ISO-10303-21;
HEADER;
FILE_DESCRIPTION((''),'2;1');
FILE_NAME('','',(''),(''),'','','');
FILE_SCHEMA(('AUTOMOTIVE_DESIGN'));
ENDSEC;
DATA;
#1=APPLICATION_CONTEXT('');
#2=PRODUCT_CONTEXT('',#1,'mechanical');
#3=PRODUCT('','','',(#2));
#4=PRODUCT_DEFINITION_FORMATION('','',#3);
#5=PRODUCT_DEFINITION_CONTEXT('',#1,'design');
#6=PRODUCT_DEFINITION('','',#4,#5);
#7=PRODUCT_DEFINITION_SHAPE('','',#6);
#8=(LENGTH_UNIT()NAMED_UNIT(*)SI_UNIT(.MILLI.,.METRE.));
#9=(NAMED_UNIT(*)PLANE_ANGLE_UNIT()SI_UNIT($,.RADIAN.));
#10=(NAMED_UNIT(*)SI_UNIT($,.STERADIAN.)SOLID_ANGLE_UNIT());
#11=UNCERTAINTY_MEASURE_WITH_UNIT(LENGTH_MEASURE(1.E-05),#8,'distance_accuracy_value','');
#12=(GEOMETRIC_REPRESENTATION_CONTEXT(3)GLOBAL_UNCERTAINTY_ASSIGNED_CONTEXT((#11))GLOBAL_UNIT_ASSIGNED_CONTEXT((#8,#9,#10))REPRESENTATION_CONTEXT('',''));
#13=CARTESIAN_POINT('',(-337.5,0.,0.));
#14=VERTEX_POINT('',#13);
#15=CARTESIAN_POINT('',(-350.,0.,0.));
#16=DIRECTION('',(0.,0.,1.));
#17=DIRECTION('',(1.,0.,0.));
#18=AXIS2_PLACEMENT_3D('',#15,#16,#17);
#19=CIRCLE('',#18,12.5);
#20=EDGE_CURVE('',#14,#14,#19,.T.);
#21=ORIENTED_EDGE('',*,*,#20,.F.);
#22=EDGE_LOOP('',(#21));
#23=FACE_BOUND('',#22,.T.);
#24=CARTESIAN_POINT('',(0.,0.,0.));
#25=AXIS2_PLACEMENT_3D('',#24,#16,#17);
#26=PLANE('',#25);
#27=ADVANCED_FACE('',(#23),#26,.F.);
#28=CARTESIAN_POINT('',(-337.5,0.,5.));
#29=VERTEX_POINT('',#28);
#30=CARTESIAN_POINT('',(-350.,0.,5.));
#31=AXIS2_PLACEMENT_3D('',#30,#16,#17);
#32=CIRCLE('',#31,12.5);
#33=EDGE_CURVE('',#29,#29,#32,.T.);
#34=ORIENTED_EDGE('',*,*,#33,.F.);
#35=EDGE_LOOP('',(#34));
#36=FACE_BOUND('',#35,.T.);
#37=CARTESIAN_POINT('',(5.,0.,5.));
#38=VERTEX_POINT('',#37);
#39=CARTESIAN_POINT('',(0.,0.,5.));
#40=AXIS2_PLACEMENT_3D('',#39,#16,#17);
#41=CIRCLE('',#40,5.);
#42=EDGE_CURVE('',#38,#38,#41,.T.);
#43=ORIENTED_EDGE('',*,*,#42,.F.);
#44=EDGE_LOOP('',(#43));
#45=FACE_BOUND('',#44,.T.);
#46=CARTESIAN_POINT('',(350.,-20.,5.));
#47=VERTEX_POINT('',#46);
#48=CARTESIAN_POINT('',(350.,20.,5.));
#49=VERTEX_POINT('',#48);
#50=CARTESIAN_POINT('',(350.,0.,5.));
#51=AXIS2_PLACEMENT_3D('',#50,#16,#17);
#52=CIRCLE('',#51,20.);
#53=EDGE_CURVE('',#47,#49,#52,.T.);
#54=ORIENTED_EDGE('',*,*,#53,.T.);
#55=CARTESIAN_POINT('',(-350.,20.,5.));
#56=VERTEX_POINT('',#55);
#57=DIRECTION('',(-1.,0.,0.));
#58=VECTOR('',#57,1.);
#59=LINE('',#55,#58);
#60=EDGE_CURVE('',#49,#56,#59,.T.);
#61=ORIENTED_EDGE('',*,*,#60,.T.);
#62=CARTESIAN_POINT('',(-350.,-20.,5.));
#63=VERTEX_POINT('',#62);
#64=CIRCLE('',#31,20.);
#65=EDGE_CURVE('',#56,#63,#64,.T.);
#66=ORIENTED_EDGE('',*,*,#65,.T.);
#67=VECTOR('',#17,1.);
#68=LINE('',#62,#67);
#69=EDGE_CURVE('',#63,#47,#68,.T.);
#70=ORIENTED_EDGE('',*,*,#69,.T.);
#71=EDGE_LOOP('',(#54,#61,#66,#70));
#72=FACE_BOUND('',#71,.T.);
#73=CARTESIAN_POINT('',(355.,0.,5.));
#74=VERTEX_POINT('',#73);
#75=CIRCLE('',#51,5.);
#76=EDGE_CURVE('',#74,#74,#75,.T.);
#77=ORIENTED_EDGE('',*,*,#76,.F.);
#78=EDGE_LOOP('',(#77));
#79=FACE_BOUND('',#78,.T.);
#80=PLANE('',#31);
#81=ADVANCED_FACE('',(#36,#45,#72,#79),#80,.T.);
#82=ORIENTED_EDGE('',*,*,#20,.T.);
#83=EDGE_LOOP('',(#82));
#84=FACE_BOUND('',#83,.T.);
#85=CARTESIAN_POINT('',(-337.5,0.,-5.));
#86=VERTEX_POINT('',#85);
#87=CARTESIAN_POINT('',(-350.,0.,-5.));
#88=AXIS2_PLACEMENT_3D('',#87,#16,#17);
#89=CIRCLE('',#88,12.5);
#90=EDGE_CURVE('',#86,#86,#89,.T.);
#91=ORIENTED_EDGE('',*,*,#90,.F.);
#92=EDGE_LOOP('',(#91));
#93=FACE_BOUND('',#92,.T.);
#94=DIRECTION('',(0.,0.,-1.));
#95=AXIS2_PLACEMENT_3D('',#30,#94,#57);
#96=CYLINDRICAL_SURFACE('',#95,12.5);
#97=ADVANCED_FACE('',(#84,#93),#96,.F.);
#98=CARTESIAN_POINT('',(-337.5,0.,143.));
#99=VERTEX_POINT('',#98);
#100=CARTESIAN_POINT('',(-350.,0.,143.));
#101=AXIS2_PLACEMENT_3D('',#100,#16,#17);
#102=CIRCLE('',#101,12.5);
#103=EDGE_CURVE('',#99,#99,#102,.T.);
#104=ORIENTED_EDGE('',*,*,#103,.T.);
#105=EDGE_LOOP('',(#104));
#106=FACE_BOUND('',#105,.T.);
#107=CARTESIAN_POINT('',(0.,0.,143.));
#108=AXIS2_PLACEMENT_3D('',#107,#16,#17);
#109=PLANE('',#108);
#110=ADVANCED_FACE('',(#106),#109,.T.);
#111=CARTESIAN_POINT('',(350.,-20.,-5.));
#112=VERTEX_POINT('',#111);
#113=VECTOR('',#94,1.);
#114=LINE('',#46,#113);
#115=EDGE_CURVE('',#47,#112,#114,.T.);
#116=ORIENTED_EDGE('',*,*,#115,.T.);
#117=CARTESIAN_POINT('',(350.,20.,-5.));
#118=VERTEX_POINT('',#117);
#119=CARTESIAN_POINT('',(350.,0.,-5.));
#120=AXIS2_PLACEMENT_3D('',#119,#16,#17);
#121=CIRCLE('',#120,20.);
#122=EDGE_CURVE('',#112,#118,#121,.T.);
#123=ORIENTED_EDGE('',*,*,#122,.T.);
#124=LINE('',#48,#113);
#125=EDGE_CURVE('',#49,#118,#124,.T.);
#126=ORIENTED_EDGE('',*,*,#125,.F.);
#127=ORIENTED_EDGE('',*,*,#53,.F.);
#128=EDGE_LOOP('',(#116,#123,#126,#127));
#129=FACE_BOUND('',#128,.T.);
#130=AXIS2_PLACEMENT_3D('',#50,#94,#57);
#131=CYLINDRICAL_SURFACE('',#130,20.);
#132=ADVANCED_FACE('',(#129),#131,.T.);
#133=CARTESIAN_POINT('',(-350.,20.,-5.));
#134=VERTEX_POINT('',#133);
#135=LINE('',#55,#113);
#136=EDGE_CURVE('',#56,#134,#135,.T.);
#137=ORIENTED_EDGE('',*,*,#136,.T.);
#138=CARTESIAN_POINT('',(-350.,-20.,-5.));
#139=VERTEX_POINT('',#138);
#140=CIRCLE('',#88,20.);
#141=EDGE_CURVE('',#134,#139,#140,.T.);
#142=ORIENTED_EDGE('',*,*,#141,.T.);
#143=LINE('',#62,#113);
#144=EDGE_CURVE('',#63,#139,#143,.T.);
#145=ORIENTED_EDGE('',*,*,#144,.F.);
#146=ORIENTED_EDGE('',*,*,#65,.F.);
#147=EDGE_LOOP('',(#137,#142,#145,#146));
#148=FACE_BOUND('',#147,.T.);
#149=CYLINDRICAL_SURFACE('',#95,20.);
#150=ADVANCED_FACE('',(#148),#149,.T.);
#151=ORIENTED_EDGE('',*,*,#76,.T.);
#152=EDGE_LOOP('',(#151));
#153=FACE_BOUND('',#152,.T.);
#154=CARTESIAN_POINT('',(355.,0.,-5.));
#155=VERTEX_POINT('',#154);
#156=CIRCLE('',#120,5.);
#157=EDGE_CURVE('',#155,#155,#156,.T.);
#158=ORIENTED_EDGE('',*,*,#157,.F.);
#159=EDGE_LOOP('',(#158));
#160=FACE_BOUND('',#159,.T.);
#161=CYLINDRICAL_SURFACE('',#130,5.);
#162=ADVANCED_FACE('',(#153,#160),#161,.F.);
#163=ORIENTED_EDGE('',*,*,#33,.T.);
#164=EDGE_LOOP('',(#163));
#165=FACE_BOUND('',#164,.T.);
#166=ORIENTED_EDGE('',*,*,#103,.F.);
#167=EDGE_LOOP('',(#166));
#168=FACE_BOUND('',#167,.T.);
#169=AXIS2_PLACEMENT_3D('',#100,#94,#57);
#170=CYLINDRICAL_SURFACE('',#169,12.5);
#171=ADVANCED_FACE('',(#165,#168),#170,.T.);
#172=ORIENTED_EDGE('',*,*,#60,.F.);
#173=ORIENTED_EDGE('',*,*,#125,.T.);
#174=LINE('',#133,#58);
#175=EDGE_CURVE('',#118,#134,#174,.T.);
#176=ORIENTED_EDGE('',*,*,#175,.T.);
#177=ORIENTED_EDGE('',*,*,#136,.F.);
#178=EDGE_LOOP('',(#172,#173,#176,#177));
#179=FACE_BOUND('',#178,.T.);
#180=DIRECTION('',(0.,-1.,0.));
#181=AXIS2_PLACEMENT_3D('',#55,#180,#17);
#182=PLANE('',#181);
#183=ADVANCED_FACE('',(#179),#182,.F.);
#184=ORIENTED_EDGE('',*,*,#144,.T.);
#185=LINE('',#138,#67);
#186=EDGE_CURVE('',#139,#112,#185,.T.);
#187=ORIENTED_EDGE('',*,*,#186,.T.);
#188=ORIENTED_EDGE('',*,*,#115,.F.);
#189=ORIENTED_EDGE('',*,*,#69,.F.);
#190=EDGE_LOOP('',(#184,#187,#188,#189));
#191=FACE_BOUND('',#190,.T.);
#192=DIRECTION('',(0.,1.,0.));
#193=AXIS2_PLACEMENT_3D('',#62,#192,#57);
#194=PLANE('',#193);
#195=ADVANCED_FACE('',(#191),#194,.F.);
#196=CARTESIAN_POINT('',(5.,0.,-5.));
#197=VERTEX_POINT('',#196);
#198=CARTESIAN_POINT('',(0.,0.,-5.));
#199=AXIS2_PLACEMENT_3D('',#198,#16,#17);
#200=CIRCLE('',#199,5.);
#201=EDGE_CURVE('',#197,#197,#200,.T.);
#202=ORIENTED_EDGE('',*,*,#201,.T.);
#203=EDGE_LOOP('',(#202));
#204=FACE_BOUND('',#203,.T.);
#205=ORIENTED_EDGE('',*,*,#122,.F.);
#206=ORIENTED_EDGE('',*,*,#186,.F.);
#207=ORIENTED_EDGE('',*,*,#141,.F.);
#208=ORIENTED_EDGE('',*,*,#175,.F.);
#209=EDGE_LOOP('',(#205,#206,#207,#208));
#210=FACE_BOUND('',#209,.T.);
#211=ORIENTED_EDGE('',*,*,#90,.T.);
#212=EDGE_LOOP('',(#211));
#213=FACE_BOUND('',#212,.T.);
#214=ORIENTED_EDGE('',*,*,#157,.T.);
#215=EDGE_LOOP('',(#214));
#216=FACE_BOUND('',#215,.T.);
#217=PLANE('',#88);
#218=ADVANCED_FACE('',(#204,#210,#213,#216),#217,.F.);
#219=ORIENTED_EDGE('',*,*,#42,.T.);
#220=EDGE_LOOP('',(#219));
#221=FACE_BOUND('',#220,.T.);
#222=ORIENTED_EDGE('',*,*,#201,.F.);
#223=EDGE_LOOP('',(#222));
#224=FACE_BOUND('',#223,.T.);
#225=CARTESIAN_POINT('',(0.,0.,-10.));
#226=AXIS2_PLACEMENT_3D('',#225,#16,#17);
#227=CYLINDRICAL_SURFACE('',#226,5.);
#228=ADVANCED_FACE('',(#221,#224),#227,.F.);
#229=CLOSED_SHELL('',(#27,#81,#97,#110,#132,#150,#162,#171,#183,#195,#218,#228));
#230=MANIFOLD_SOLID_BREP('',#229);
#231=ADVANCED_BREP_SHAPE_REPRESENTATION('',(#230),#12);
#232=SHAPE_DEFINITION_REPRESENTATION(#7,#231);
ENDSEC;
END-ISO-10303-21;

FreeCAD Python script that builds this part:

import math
import FreeCAD as App
import Part
import Sketcher

V = App.Vector

doc = App.newDocument("Part")
body = doc.addObject("PartDesign::Body", "Body")

# Sketch on XY plane
sketch1 = body.newObject("Sketcher::SketchObject", "Sketch")
sketch1.AttachmentSupport = (doc.getObject("XY_Plane"), [""])
sketch1.MapMode = "FlatFace"
sketch1.addGeometry([
    Part.LineSegment(V(350, 20, 0), V(-350, 20, 0)),  # 0
    Part.ArcOfCircle(Part.Circle(V(-350, 0, 0), V(0, 0, 1), 20), math.radians(90), math.radians(270)),  # 1
    Part.LineSegment(V(-350, -20, 0), V(350, -20, 0)),  # 2
    Part.ArcOfCircle(Part.Circle(V(350, 0, 0), V(0, 0, 1), 20), math.radians(-90), math.radians(90)),  # 3
    Part.Circle(V(350, 0, 0), V(0, 0, 1), 5),  # 4
    Part.Circle(V(-350, 0, 0), V(0, 0, 1), 12),  # 5
], False)
sketch1.addConstraint([
    Sketcher.Constraint("Tangent", 0, 2, 1, 1),
    Sketcher.Constraint("Tangent", 1, 2, 2, 1),
    Sketcher.Constraint("Tangent", 2, 2, 3, 1),
    Sketcher.Constraint("Tangent", 3, 2, 0, 1),
    Sketcher.Constraint("Horizontal", 0),
    Sketcher.Constraint("Horizontal", 2),
    Sketcher.Constraint("Coincident", 4, 3, 3, 3),
    Sketcher.Constraint("Coincident", 5, 3, 1, 3),
    Sketcher.Constraint("Symmetric", 1, 3, 3, 3, -1, 1),
    Sketcher.Constraint("Diameter", 4, 10.0),
    Sketcher.Constraint("Diameter", 5, 25.0),
    Sketcher.Constraint("Radius", 1, 20.0),
    Sketcher.Constraint("DistanceX", 0, 2, 0, 1, 700.0),
])
pad1 = body.newObject("PartDesign::Pad", "Pad")
pad1.Profile = sketch1
pad1.Length = 10
pad1.Midplane = True

# Sketch on XY plane
sketch2 = body.newObject("Sketcher::SketchObject", "Sketch001")
sketch2.AttachmentSupport = (doc.getObject("XY_Plane"), [""])
sketch2.MapMode = "FlatFace"
sketch2.AttachmentOffset = App.Placement(V(0, 0, 5), App.Rotation())
sketch2.addGeometry(Part.Circle(V(0, 0, 0), V(0, 0, 1), 5), False)
sketch2.addConstraint([
    Sketcher.Constraint("Coincident", 0, 3, -1, 1),
    Sketcher.Constraint("Diameter", 0, 10.0),
])
pocket1 = body.newObject("PartDesign::Pocket", "Pocket")
pocket1.Profile = sketch2
pocket1.Length = 15

# Sketch on XY plane
sketch3 = body.newObject("Sketcher::SketchObject", "Sketch002")
sketch3.AttachmentSupport = (doc.getObject("XY_Plane"), [""])
sketch3.MapMode = "FlatFace"
sketch3.addGeometry(Part.Circle(V(-350, 0, 0), V(0, 0, 1), 12), False)
sketch3.addConstraint([
    Sketcher.Constraint("PointOnObject", 0, 3, -1),
    Sketcher.Constraint("Diameter", 0, 25.0),
    Sketcher.Constraint("DistanceX", 0, 3, -1, 1, 350.0),
])
pad2 = body.newObject("PartDesign::Pad", "Pad001")
pad2.Profile = sketch3
pad2.Length = 143

doc.recompute()
